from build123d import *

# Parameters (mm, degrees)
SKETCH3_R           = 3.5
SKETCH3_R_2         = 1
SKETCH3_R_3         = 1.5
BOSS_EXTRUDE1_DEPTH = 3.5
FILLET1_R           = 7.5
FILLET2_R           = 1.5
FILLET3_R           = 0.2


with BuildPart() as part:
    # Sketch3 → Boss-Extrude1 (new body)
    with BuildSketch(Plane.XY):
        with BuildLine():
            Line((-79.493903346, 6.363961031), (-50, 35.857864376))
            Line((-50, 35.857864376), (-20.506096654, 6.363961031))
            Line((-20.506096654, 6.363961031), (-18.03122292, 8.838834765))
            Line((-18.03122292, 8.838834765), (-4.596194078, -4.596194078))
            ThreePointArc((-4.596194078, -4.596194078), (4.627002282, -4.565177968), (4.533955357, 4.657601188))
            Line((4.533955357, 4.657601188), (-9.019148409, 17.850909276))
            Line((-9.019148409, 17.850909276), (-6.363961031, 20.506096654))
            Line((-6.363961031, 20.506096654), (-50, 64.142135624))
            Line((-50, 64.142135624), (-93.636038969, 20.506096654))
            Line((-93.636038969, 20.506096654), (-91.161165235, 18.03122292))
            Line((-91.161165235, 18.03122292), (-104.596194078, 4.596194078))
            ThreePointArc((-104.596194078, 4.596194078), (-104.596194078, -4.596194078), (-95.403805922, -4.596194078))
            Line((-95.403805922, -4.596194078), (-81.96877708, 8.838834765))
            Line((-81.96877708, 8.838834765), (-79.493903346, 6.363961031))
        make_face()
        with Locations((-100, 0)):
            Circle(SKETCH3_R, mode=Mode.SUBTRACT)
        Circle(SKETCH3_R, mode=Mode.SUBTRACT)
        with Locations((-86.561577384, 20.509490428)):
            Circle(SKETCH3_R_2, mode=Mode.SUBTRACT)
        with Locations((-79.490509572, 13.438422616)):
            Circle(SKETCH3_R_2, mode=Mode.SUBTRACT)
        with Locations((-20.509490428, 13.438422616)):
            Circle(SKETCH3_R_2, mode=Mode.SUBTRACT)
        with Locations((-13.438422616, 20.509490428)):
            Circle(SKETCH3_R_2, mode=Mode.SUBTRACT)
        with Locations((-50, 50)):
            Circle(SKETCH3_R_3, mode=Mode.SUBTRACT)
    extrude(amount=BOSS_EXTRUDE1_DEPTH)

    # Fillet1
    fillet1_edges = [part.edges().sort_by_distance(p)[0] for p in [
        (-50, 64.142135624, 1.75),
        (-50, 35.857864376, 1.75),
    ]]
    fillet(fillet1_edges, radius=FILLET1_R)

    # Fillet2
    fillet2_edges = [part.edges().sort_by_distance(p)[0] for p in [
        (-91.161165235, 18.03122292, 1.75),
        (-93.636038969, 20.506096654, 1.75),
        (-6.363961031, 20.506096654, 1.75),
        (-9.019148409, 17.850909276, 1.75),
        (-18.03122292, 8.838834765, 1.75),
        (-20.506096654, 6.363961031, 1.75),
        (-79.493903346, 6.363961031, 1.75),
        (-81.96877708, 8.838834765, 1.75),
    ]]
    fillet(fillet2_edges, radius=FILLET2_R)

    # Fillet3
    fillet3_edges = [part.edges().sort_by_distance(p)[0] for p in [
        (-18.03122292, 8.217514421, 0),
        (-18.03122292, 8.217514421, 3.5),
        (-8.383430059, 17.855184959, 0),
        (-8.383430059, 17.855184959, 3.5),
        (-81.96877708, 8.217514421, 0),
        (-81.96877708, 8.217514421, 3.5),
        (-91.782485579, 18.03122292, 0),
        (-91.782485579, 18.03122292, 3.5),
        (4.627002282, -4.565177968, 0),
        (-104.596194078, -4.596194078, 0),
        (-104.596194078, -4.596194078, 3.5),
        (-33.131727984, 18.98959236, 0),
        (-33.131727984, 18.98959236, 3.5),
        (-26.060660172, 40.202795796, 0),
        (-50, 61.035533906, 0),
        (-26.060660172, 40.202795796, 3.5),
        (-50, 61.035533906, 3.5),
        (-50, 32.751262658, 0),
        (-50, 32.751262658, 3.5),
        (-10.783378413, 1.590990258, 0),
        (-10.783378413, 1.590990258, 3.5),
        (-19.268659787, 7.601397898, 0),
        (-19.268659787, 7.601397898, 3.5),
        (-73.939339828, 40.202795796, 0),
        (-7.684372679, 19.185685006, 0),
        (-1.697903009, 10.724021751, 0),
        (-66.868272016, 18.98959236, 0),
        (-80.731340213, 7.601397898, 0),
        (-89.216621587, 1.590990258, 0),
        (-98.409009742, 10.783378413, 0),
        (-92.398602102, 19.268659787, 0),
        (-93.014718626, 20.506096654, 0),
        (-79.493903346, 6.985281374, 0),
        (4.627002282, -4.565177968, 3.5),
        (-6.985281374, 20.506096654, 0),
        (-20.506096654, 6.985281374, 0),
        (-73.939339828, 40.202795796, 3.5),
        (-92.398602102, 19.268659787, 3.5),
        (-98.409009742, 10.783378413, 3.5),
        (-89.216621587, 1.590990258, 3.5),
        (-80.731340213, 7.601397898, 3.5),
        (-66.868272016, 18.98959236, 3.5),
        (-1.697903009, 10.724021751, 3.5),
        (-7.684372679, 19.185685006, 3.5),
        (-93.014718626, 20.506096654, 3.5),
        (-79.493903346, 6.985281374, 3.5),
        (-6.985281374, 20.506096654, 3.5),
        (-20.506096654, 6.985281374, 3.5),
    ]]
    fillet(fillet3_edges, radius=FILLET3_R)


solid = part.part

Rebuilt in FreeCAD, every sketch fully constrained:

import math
import FreeCAD as App
import Part
import Sketcher

V = App.Vector


def edges_at(feature, points):
    """Names of the edges that pass closest to the given points."""
    edges = feature.Shape.Edges
    near = lambda p: min(range(len(edges)), key=lambda i: edges[i].distToShape(Part.Vertex(*p))[0])
    return sorted({f"Edge{near(p) + 1}" for p in points})

doc = App.newDocument("Part")
params = doc.addObject("Spreadsheet::Sheet", "Params")
for row, (alias, value) in enumerate([
    ("sketch1_diameter", "7 mm"),
    ("sketch1_diameter2", "2 mm"),
    ("sketch1_diameter3", "3 mm"),
    ("sketch1_radius", "6.5 mm"),
    ("sketch1_length", "19 mm"),
    ("pad1_length", "3.5 mm"),
    ("fillet_radius", "7.5 mm"),
    ("fillet2_radius", "1.5 mm"),
    ("fillet3_radius", "0.2 mm"),
], start=1):
    params.set(f"A{row}", alias)
    params.set(f"B{row}", "=" + value)
    params.setAlias(f"B{row}", alias)

body = doc.addObject("PartDesign::Body", "Body")

# Sketch on XY plane
sketch1 = doc.addObject("Sketcher::SketchObject", "Sketch")
body.addObject(sketch1)
sketch1.AttachmentSupport = (doc.XY_Plane, [""])
sketch1.MapMode = "FlatFace"
sketch1.addGeometry([
    Part.LineSegment(V(-79.493903, 6.363961, 0), V(-50, 35.857864, 0)),  # 0
    Part.LineSegment(V(-50, 35.857864, 0), V(-20.506097, 6.363961, 0)),  # 1
    Part.LineSegment(V(-20.506097, 6.363961, 0), V(-18.031223, 8.838835, 0)),  # 2
    Part.LineSegment(V(-18.031223, 8.838835, 0), V(-4.596194, -4.596194, 0)),  # 3
    Part.ArcOfCircle(Part.Circle(V(0, 0, 0), V(0, 0, 1), 6.5), math.radians(-135), math.radians(45.770703)),  # 4
    Part.LineSegment(V(4.533955, 4.657601, 0), V(-9.019148, 17.850909, 0)),  # 5
    Part.LineSegment(V(-9.019148, 17.850909, 0), V(-6.363961, 20.506097, 0)),  # 6
    Part.LineSegment(V(-6.363961, 20.506097, 0), V(-50, 64.142136, 0)),  # 7
    Part.LineSegment(V(-50, 64.142136, 0), V(-93.636039, 20.506097, 0)),  # 8
    Part.LineSegment(V(-93.636039, 20.506097, 0), V(-91.161165, 18.031223, 0)),  # 9
    Part.LineSegment(V(-91.161165, 18.031223, 0), V(-104.596194, 4.596194, 0)),  # 10
    Part.ArcOfCircle(Part.Circle(V(-100, 0, 0), V(0, 0, 1), 6.5), math.radians(135), math.radians(315)),  # 11
    Part.LineSegment(V(-95.403806, -4.596194, 0), V(-81.968777, 8.838835, 0)),  # 12
    Part.LineSegment(V(-81.968777, 8.838835, 0), V(-79.493903, 6.363961, 0)),  # 13
    Part.Circle(V(-100, 0, 0), V(0, 0, 1), 3.5),  # 14
    Part.Circle(V(-79.49051, 13.438423, 0), V(0, 0, 1), 1),  # 15
    Part.Circle(V(-86.561577, 20.50949, 0), V(0, 0, 1), 1),  # 16
    Part.Circle(V(0, 0, 0), V(0, 0, 1), 3.5),  # 17
    Part.Circle(V(-20.50949, 13.438423, 0), V(0, 0, 1), 1),  # 18
    Part.Circle(V(-13.438423, 20.50949, 0), V(0, 0, 1), 1),  # 19
    Part.Circle(V(-50, 50, 0), V(0, 0, 1), 1.5),  # 20
], False)
sketch1.addConstraint([
    Sketcher.Constraint("Coincident", 0, 2, 1, 1),
    Sketcher.Constraint("Coincident", 1, 2, 2, 1),
    Sketcher.Constraint("Coincident", 2, 2, 3, 1),
    Sketcher.Constraint("Tangent", 3, 2, 4, 1),
    Sketcher.Constraint("Tangent", 4, 2, 5, 1),
    Sketcher.Constraint("Coincident", 5, 2, 6, 1),
    Sketcher.Constraint("Coincident", 6, 2, 7, 1),
    Sketcher.Constraint("Coincident", 7, 2, 8, 1),
    Sketcher.Constraint("Coincident", 8, 2, 9, 1),
    Sketcher.Constraint("Coincident", 9, 2, 10, 1),
    Sketcher.Constraint("Tangent", 10, 2, 11, 1),
    Sketcher.Constraint("Tangent", 11, 2, 12, 1),
    Sketcher.Constraint("Coincident", 12, 2, 13, 1),
    Sketcher.Constraint("Coincident", 13, 2, 0, 1),
    Sketcher.Constraint("Coincident", 4, 3, -1, 1),
    Sketcher.Constraint("Coincident", 17, 3, -1, 1),
    Sketcher.Constraint("Coincident", 14, 3, 11, 3),
    Sketcher.Constraint("Equal", 4, 11),
    Sketcher.Constraint("Equal", 15, 16),
    Sketcher.Constraint("Equal", 14, 17),
    Sketcher.Constraint("Equal", 16, 18),
    Sketcher.Constraint("Equal", 18, 19),
    Sketcher.Constraint("PointOnObject", 11, 3, -1),
    Sketcher.Constraint("Perpendicular", 0, 1),
    Sketcher.Constraint("Perpendicular", 1, 2),
    Sketcher.Constraint("Perpendicular", 2, 3),
    Sketcher.Constraint("Perpendicular", 3, 6),
    Sketcher.Constraint("Perpendicular", 6, 7),
    Sketcher.Constraint("Perpendicular", 7, 8),
    Sketcher.Constraint("Perpendicular", 8, 9),
    Sketcher.Constraint("Perpendicular", 9, 10),
    Sketcher.Constraint("Parallel", 10, 12),
    Sketcher.Constraint("Perpendicular", 12, 13),
    Sketcher.Constraint("Horizontal", 15, 3, 18, 3),
    Sketcher.Constraint("Horizontal", 16, 3, 19, 3),
    Sketcher.Constraint("Horizontal", 6, 2, 8, 2),
    Sketcher.Constraint("Horizontal", 3, 2, 11, 2),
    Sketcher.Constraint("Horizontal", 2, 2, 12, 2),
    Sketcher.Constraint("Horizontal", 1, 2, 13, 2),
    Sketcher.Constraint("Vertical", 20, 3, 0, 2),
    Sketcher.Constraint("Vertical", 0, 2, 7, 2),
    Sketcher.Constraint("Equal", 2, 9),
    Sketcher.Constraint("Equal", 3, 10),
    Sketcher.Constraint("Diameter", 14, 7.0),
    Sketcher.Constraint("Diameter", 15, 2.0),
    Sketcher.Constraint("Diameter", 20, 3.0),
    Sketcher.Constraint("Radius", 4, 6.5),
    Sketcher.Constraint("Distance", 3, 19.0),
    Sketcher.Constraint("DistanceX", 11, 3, -1, 1, 100.0),
    Sketcher.Constraint("DistanceY", -1, 1, 20, 3, 50.0),
    Sketcher.Constraint("Distance", 2, 3.5),
    Sketcher.Constraint("DistanceY", -1, 1, 4, 2, 4.657601),
    Sketcher.Constraint("DistanceX", 2, 2, 19, 3, 4.5928),
    Sketcher.Constraint("DistanceY", 15, 3, 9, 2, 4.5928),
    Sketcher.Constraint("DistanceX", 16, 3, 12, 2, 4.5928),
    Sketcher.Constraint("DistanceX", 15, 3, -1, 1, 79.49051),
    Sketcher.Constraint("DistanceY", -1, 1, 16, 3, 20.50949),
    Sketcher.Constraint("DistanceX", 18, 3, -1, 1, 20.50949),
])
sketch1.setExpression("Constraints[43]", "Params.sketch1_diameter")
sketch1.setExpression("Constraints[44]", "Params.sketch1_diameter2")
sketch1.setExpression("Constraints[45]", "Params.sketch1_diameter3")
sketch1.setExpression("Constraints[46]", "Params.sketch1_radius")
sketch1.setExpression("Constraints[47]", "Params.sketch1_length")
pad1 = doc.addObject("PartDesign::Pad", "Pad")
body.addObject(pad1)
pad1.Profile = sketch1
pad1.setExpression("Length", "Params.pad1_length")
doc.recompute()

fillet = doc.addObject("PartDesign::Fillet", "Fillet")
body.addObject(fillet)
fillet.Base = (pad1, edges_at(pad1, [(-50, 64.142, 1.75), (-50, 35.858, 1.75)]))
fillet.setExpression("Radius", "Params.fillet_radius")
doc.recompute()

fillet2 = doc.addObject("PartDesign::Fillet", "Fillet001")
body.addObject(fillet2)
fillet2.Base = (fillet, edges_at(fillet, [
    (-91.161, 18.031, 1.75),
    (-93.636, 20.506, 1.75),
    (-6.364, 20.506, 1.75),
    (-9.019, 17.851, 1.75),
    (-18.031, 8.839, 1.75),
    (-20.506, 6.364, 1.75),
    (-79.494, 6.364, 1.75),
    (-81.969, 8.839, 1.75),
]))
fillet2.setExpression("Radius", "Params.fillet2_radius")
doc.recompute()

fillet3 = doc.addObject("PartDesign::Fillet", "Fillet002")
body.addObject(fillet3)
fillet3.Base = (fillet2, edges_at(fillet2, [
    (-18.031, 8.218, 0),
    (-18.031, 8.218, 3.5),
    (-8.383, 17.855, 0),
    (-8.383, 17.855, 3.5),
    (-81.969, 8.218, 0),
    (-81.969, 8.218, 3.5),
    (-91.782, 18.031, 0),
    (-91.782, 18.031, 3.5),
    (4.627, -4.565, 0),
    (-104.596, -4.596, 0),
    (-104.596, -4.596, 3.5),
    (-33.132, 18.99, 0),
    (-33.132, 18.99, 3.5),
    (-26.061, 40.203, 0),
    (-50, 61.036, 0),
    (-26.061, 40.203, 3.5),
    (-50, 61.036, 3.5),
    (-50, 32.751, 0),
    (-50, 32.751, 3.5),
    (-10.783, 1.591, 0),
    (-10.783, 1.591, 3.5),
    (-19.269, 7.601, 0),
    (-19.269, 7.601, 3.5),
    (-73.939, 40.203, 0),
    (-7.684, 19.186, 0),
    (-1.698, 10.724, 0),
    (-66.868, 18.99, 0),
    (-80.731, 7.601, 0),
    (-89.217, 1.591, 0),
    (-98.409, 10.783, 0),
    (-92.399, 19.269, 0),
    (-93.015, 20.506, 0),
    (-79.494, 6.985, 0),
    (4.627, -4.565, 3.5),
    (-6.985, 20.506, 0),
    (-20.506, 6.985, 0),
    (-73.939, 40.203, 3.5),
    (-92.399, 19.269, 3.5),
    (-98.409, 10.783, 3.5),
    (-89.217, 1.591, 3.5),
    (-80.731, 7.601, 3.5),
    (-66.868, 18.99, 3.5),
    (-1.698, 10.724, 3.5),
    (-7.684, 19.186, 3.5),
    (-93.015, 20.506, 3.5),
    (-79.494, 6.985, 3.5),
    (-6.985, 20.506, 3.5),
    (-20.506, 6.985, 3.5),
]))
fillet3.setExpression("Radius", "Params.fillet3_radius")

doc.recompute()
